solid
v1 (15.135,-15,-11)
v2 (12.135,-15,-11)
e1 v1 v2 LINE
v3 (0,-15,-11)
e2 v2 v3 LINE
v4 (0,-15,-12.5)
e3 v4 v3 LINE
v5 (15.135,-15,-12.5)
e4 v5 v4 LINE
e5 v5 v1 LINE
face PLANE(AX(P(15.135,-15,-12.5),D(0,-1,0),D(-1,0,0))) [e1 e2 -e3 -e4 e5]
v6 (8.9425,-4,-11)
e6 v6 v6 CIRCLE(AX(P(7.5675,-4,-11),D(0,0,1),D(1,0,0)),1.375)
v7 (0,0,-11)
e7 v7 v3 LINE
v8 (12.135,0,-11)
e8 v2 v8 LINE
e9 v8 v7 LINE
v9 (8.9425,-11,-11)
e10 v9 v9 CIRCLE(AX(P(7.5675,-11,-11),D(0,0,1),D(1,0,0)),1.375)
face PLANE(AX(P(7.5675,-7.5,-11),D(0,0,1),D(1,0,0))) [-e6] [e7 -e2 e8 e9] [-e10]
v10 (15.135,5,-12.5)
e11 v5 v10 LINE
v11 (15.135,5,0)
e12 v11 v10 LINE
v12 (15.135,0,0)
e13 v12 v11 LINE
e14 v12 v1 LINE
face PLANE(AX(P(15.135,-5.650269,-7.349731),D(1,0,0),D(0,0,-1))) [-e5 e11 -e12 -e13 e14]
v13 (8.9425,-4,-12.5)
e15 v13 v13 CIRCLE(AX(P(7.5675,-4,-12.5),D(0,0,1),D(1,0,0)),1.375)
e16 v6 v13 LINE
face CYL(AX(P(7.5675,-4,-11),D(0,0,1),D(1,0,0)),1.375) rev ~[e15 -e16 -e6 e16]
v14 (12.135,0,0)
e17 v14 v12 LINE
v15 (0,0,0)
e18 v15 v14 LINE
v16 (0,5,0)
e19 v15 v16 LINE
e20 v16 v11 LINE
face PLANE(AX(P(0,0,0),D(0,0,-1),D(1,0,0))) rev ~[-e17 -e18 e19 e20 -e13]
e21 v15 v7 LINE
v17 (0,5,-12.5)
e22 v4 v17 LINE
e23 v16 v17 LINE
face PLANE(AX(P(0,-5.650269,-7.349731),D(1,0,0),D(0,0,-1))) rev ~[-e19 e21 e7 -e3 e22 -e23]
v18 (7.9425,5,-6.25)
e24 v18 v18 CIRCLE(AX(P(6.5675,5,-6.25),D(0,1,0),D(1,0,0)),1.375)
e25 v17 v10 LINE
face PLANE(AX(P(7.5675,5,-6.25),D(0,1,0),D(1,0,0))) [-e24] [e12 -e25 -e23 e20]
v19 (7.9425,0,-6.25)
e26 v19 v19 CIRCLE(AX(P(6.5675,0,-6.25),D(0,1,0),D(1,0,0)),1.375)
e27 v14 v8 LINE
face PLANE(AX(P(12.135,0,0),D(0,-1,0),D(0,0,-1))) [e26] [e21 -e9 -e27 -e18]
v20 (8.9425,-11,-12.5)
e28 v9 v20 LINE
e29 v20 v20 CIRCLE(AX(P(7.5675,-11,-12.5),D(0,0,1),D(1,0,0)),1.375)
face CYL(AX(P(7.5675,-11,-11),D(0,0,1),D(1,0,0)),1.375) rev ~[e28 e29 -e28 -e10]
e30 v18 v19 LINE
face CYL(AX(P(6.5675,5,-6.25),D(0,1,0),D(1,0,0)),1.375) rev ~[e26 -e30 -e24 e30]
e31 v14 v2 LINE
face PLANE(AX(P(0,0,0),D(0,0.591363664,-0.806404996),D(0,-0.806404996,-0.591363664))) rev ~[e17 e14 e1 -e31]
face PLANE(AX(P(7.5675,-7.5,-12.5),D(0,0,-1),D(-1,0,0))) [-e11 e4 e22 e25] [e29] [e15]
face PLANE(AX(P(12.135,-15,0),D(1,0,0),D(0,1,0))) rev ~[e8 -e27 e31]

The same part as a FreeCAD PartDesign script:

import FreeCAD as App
import Part
import Sketcher
from FreeCAD import Vector

doc = App.newDocument("Part")
body = doc.addObject("PartDesign::Body", "Body")

# Sketch on XZ plane
sketch1 = body.newObject("Sketcher::SketchObject", "Sketch")
sketch1.AttachmentSupport = (doc.getObject("XZ_Plane"), [""])
sketch1.MapMode = "FlatFace"
sketch1.addGeometry([
    Part.LineSegment(Vector(0, -12.5, 0), Vector(0, 0, 0)),
    Part.LineSegment(Vector(0, 0, 0), Vector(15.135, 0, 0)),
    Part.LineSegment(Vector(15.135, 0, 0), Vector(15.135, -12.5, 0)),
    Part.LineSegment(Vector(15.135, -12.5, 0), Vector(0, -12.5, 0)),
], False)
sketch1.addConstraint([
    Sketcher.Constraint("Coincident", 0, 2, 1, 1),
    Sketcher.Constraint("Coincident", 1, 2, 2, 1),
    Sketcher.Constraint("Coincident", 2, 2, 3, 1),
    Sketcher.Constraint("Coincident", 3, 2, 0, 1),
    Sketcher.Constraint("Vertical", 0),
    Sketcher.Constraint("Horizontal", 1),
    Sketcher.Constraint("Vertical", 2),
    Sketcher.Constraint("Horizontal", 3),
    Sketcher.Constraint("Coincident", 0, 2, -1, 1),
    Sketcher.Constraint("DistanceY", 0, 1, 0, 2, 12.5),
    Sketcher.Constraint("DistanceX", 1, 1, 1, 2, 15.135),
])
pad1 = body.newObject("PartDesign::Pad", "Pad")
pad1.Profile = sketch1
pad1.Length = 5
pad1.Reversed = True

# Sketch on XY plane
sketch2 = body.newObject("Sketcher::SketchObject", "Sketch001")
sketch2.AttachmentSupport = (doc.getObject("XY_Plane"), [""])
sketch2.MapMode = "FlatFace"
sketch2.AttachmentOffset = App.Placement(Vector(0, 0, -12.5), App.Rotation())
sketch2.addGeometry([
    Part.LineSegment(Vector(15.135, 0, 0), Vector(15.135, -15, 0)),
    Part.LineSegment(Vector(15.135, -15, 0), Vector(0, -15, 0)),
    Part.LineSegment(Vector(0, -15, 0), Vector(0, 0, 0)),
    Part.LineSegment(Vector(0, 0, 0), Vector(15.135, 0, 0)),
], False)
sketch2.addConstraint([
    Sketcher.Constraint("Coincident", 0, 2, 1, 1),
    Sketcher.Constraint("Coincident", 1, 2, 2, 1),
    Sketcher.Constraint("Coincident", 2, 2, 3, 1),
    Sketcher.Constraint("Coincident", 3, 2, 0, 1),
    Sketcher.Constraint("Vertical", 0),
    Sketcher.Constraint("Horizontal", 1),
    Sketcher.Constraint("Vertical", 2),
    Sketcher.Constraint("Horizontal", 3),
    Sketcher.Constraint("Coincident", 2, 2, -1, 1),
    Sketcher.Constraint("DistanceY", 0, 2, 0, 1, 15.0),
    Sketcher.Constraint("DistanceX", 1, 2, 1, 1, 15.135),
])
pad2 = body.newObject("PartDesign::Pad", "Pad001")
pad2.Profile = sketch2
pad2.Length = 1.5

# Sketch on YZ plane
sketch3 = body.newObject("Sketcher::SketchObject", "Sketch002")
sketch3.AttachmentSupport = (doc.getObject("YZ_Plane"), [""])
sketch3.MapMode = "FlatFace"
sketch3.addGeometry([
    Part.LineSegment(Vector(-15, -11, 0), Vector(0, 0, 0)),
    Part.LineSegment(Vector(0, 0, 0), Vector(0, -11, 0)),
    Part.LineSegment(Vector(0, -11, 0), Vector(-15, -11, 0)),
], False)
sketch3.addConstraint([
    Sketcher.Constraint("Coincident", 0, 2, 1, 1),
    Sketcher.Constraint("Coincident", 1, 2, 2, 1),
    Sketcher.Constraint("Coincident", 2, 2, 0, 1),
    Sketcher.Constraint("Vertical", 1),
    Sketcher.Constraint("Horizontal", 2),
    Sketcher.Constraint("Coincident", 0, 2, -1, 1),
    Sketcher.Constraint("DistanceX", 2, 2, 2, 1, 15.0),
    Sketcher.Constraint("DistanceY", 1, 2, 1, 1, 11.0),
])
pad3 = body.newObject("PartDesign::Pad", "Pad002")
pad3.Profile = sketch3
pad3.Length = 15.135

# Sketch on XY plane
sketch4 = body.newObject("Sketcher::SketchObject", "Sketch003")
sketch4.AttachmentSupport = (doc.getObject("XY_Plane"), [""])
sketch4.MapMode = "FlatFace"
sketch4.addGeometry([
    Part.LineSegment(Vector(3, 0, 0), Vector(3, -15, 0)),
    Part.LineSegment(Vector(3, -15, 0), Vector(12.135, -15, 0)),
    Part.LineSegment(Vector(12.135, -15, 0), Vector(12.135, 0, 0)),
    Part.LineSegment(Vector(12.135, 0, 0), Vector(3, 0, 0)),
], False)
sketch4.addConstraint([
    Sketcher.Constraint("Coincident", 0, 2, 1, 1),
    Sketcher.Constraint("Coincident", 1, 2, 2, 1),
    Sketcher.Constraint("Coincident", 2, 2, 3, 1),
    Sketcher.Constraint("Coincident", 3, 2, 0, 1),
    Sketcher.Constraint("Vertical", 0),
    Sketcher.Constraint("Horizontal", 1),
    Sketcher.Constraint("Vertical", 2),
    Sketcher.Constraint("Horizontal", 3),
    Sketcher.Constraint("PointOnObject", 2, 2, -1),
    Sketcher.Constraint("DistanceY", 0, 2, 0, 1, 15.0),
    Sketcher.Constraint("DistanceX", -1, 1, 0, 2, 3.0),
    Sketcher.Constraint("DistanceX", 1, 1, 1, 2, 9.135),
])
pocket1 = body.newObject("PartDesign::Pocket", "Pocket")
pocket1.Profile = sketch4
pocket1.Length = 11

# Sketch on XY plane
sketch5 = body.newObject("Sketcher::SketchObject", "Sketch004")
sketch5.AttachmentSupport = (doc.getObject("XY_Plane"), [""])
sketch5.MapMode = "FlatFace"
sketch5.AttachmentOffset = App.Placement(Vector(0, 0, -11), App.Rotation())
sketch5.addGeometry([
    Part.Circle(Vector(7.5675, -4, 0), Vector(0, 0, 1), 1.375),
    Part.Circle(Vector(7.5675, -11, 0), Vector(0, 0, 1), 1.375),
], False)
sketch5.addConstraint([
    Sketcher.Constraint("Equal", 0, 1),
    Sketcher.Constraint("Vertical", 0, 3, 1, 3),
    Sketcher.Constraint("Diameter", 0, 2.75),
    Sketcher.Constraint("DistanceY", 0, 3, -1, 1, 4.0),
    Sketcher.Constraint("DistanceY", 1, 3, -1, 1, 11.0),
    Sketcher.Constraint("DistanceX", -1, 1, 0, 3, 7.5675),
])
pocket2 = body.newObject("PartDesign::Pocket", "Pocket001")
pocket2.Profile = sketch5
pocket2.Length = 2

# Sketch on XZ plane
sketch6 = body.newObject("Sketcher::SketchObject", "Sketch005")
sketch6.AttachmentSupport = (doc.getObject("XZ_Plane"), [""])
sketch6.MapMode = "FlatFace"
sketch6.AttachmentOffset = App.Placement(Vector(0, 0, -5), App.Rotation())
sketch6.addGeometry(Part.Circle(Vector(6.5675, -6.25, 0), Vector(0, 0, 1), 1.375), False)
sketch6.addConstraint([
    Sketcher.Constraint("Diameter", 0, 2.75),
    Sketcher.Constraint("DistanceY", 0, 3, -1, 1, 6.25),
    Sketcher.Constraint("DistanceX", -1, 1, 0, 3, 6.5675),
])
pocket3 = body.newObject("PartDesign::Pocket", "Pocket002")
pocket3.Profile = sketch6
pocket3.Length = 5.75
pocket3.Reversed = True

# Sketch on YZ plane
sketch7 = body.newObject("Sketcher::SketchObject", "Sketch006")
sketch7.AttachmentSupport = (doc.getObject("YZ_Plane"), [""])
sketch7.MapMode = "FlatFace"
sketch7.AttachmentOffset = App.Placement(Vector(0, 0, 12.135), App.Rotation())
sketch7.addGeometry([
    Part.LineSegment(Vector(-15, -11, 0), Vector(0, 0, 0)),
    Part.LineSegment(Vector(0, 0, 0), Vector(0, -11, 0)),
    Part.LineSegment(Vector(0, -11, 0), Vector(-15, -11, 0)),
], False)
sketch7.addConstraint([
    Sketcher.Constraint("Coincident", 0, 2, 1, 1),
    Sketcher.Constraint("Coincident", 1, 2, 2, 1),
    Sketcher.Constraint("Coincident", 2, 2, 0, 1),
    Sketcher.Constraint("Vertical", 1),
    Sketcher.Constraint("Horizontal", 2),
    Sketcher.Constraint("Coincident", 0, 2, -1, 1),
    Sketcher.Constraint("DistanceX", 2, 2, 2, 1, 15.0),
    Sketcher.Constraint("DistanceY", 1, 2, 1, 1, 11.0),
])
pocket4 = body.newObject("PartDesign::Pocket", "Pocket003")
pocket4.Profile = sketch7
pocket4.Length = 25.485173

doc.recompute()
